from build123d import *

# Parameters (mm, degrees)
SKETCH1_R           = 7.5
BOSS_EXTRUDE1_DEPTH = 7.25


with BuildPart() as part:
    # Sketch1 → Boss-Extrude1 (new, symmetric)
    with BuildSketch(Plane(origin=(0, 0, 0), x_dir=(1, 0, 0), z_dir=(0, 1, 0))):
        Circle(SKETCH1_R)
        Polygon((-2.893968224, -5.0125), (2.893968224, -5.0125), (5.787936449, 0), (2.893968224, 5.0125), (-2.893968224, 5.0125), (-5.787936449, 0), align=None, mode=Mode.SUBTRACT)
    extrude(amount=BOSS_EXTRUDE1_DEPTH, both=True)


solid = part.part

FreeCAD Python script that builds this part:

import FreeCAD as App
import Part
import Sketcher
from FreeCAD import Vector
Q = App.Units.Quantity


def add_polygon(sketch, points):
    """Adds a closed chain of lines whose ends are joined by coincident constraints."""
    first, n = sketch.GeometryCount, len(points)
    for a, b in zip(points, points[1:] + points[:1]):
        sketch.addGeometry(Part.LineSegment(App.Vector(*a, 0), App.Vector(*b, 0)), False)
    for i in range(n):
        sketch.addConstraint(Sketcher.Constraint("Coincident", first + i, 2, first + (i + 1) % n, 1))

doc = App.newDocument("Part")
body = doc.addObject("PartDesign::Body", "Body")

# Sketch on XZ plane
sketch1 = body.newObject("Sketcher::SketchObject", "Sketch")
sketch1.AttachmentSupport = (doc.getObject("XZ_Plane"), [""])
sketch1.MapMode = "FlatFace"
sketch1.addGeometry(Part.Circle(Vector(0, 0, 0), Vector(0, 0, 1), 7.5), False)  # 0
add_polygon(sketch1, [(2.893968, 5.0125), (-2.893968, 5.0125), (-5.787936, 0), (-2.893968, -5.0125), (2.893968, -5.0125), (5.787936, 0)])  # lines 1-6
sketch1.addConstraint(Sketcher.Constraint("Horizontal", 1))
sketch1.addConstraint(Sketcher.Constraint("Horizontal", 4))
sketch1.addConstraint(Sketcher.Constraint("Coincident", 0, 3, -1, 1))
sketch1.addConstraint(Sketcher.Constraint("Symmetric", 1, 2, 4, 2, -1, 1))
sketch1.addConstraint(Sketcher.Constraint("Symmetric", 2, 2, 5, 2, -1, 1))
sketch1.addConstraint(Sketcher.Constraint("PointOnObject", 2, 2, -1))
sketch1.addConstraint(Sketcher.Constraint("Parallel", 3, 6))
sketch1.addConstraint(Sketcher.Constraint("Vertical", 1, 2, 3, 2))
sketch1.addConstraint(Sketcher.Constraint("Diameter", 0, Q("15 mm")))
sketch1.addConstraint(Sketcher.Constraint("Angle", 2, Q("-120 deg")))
sketch1.addConstraint(Sketcher.Constraint("DistanceY", 3, 2, 1, 2, Q("10.025 mm")))
sketch1.addConstraint(Sketcher.Constraint("DistanceX", 1, 2, 1, 1, Q("5.787936 mm")))
pad1 = body.newObject("PartDesign::Pad", "Pad")
pad1.Profile = sketch1
pad1.Length = 14.5
pad1.Midplane = True

doc.recompute()
